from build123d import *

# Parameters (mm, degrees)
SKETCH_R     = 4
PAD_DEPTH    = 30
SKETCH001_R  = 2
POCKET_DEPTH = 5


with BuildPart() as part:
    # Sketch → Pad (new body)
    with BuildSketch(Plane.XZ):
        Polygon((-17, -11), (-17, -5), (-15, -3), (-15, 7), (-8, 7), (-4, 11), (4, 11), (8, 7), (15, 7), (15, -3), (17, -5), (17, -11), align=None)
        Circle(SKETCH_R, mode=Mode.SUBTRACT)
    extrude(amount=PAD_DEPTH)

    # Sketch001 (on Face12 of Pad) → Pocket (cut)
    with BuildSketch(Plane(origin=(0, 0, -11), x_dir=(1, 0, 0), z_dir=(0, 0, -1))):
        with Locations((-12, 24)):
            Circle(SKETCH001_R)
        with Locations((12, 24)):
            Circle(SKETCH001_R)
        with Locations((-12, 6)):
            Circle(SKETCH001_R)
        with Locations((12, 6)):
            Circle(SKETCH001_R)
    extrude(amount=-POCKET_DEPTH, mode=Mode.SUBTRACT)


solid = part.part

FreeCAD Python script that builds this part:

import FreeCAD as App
import Part
import Sketcher

V = App.Vector


def add_polygon(sketch, points):
    """Adds a closed chain of lines whose ends are joined by coincident constraints."""
    first, n = sketch.GeometryCount, len(points)
    for a, b in zip(points, points[1:] + points[:1]):
        sketch.addGeometry(Part.LineSegment(App.Vector(*a, 0), App.Vector(*b, 0)), False)
    for i in range(n):
        sketch.addConstraint(Sketcher.Constraint("Coincident", first + i, 2, first + (i + 1) % n, 1))

doc = App.newDocument("Part")
body = doc.addObject("PartDesign::Body", "Body")

# Sketch on XZ plane
sketch1 = body.newObject("Sketcher::SketchObject", "Sketch")
sketch1.AttachmentSupport = (doc.getObject("XZ_Plane"), [""])
sketch1.MapMode = "FlatFace"
add_polygon(sketch1, [(-17, -5), (-17, -11), (17, -11), (17, -5), (15, -3), (15, 7), (8, 7), (4, 11), (-4, 11), (-8, 7), (-15, 7), (-15, -3)])  # lines 0-11
sketch1.addGeometry(Part.Circle(V(0, 0, 0), V(0, 0, 1), 4), False)  # 12
sketch1.addConstraint(Sketcher.Constraint("Vertical", 0))
sketch1.addConstraint(Sketcher.Constraint("Horizontal", 1))
sketch1.addConstraint(Sketcher.Constraint("Vertical", 2))
sketch1.addConstraint(Sketcher.Constraint("Vertical", 4))
sketch1.addConstraint(Sketcher.Constraint("Horizontal", 5))
sketch1.addConstraint(Sketcher.Constraint("Horizontal", 7))
sketch1.addConstraint(Sketcher.Constraint("Horizontal", 9))
sketch1.addConstraint(Sketcher.Constraint("Vertical", 10))
sketch1.addConstraint(Sketcher.Constraint("Coincident", 12, 3, -1, 1))
sketch1.addConstraint(Sketcher.Constraint("Symmetric", 5, 2, 8, 2, -2))
sketch1.addConstraint(Sketcher.Constraint("Symmetric", 3, 2, 10, 2, -2))
sketch1.addConstraint(Sketcher.Constraint("Symmetric", 2, 2, 11, 2, -2))
sketch1.addConstraint(Sketcher.Constraint("Parallel", 3, 6))
sketch1.addConstraint(Sketcher.Constraint("Perpendicular", 6, 8))
sketch1.addConstraint(Sketcher.Constraint("Parallel", 8, 11))
sketch1.addConstraint(Sketcher.Constraint("Diameter", 12, 8.0))
sketch1.addConstraint(Sketcher.Constraint("DistanceX", 1, 1, 1, 2, 34.0))
sketch1.addConstraint(Sketcher.Constraint("DistanceX", 5, 2, 5, 1, 7.0))
sketch1.addConstraint(Sketcher.Constraint("DistanceX", 7, 2, 7, 1, 8.0))
sketch1.addConstraint(Sketcher.Constraint("DistanceY", 0, 2, 0, 1, 6.0))
sketch1.addConstraint(Sketcher.Constraint("DistanceY", 4, 1, 4, 2, 10.0))
sketch1.addConstraint(Sketcher.Constraint("DistanceY", 0, 2, -1, 1, 11.0))
sketch1.addConstraint(Sketcher.Constraint("DistanceX", -1, 1, 3, 2, 15.0))
pad1 = body.newObject("PartDesign::Pad", "Pad")
pad1.Profile = sketch1
pad1.Length = 30

# Sketch on XY plane
sketch2 = body.newObject("Sketcher::SketchObject", "Sketch001")
sketch2.AttachmentSupport = (doc.getObject("XY_Plane"), [""])
sketch2.MapMode = "FlatFace"
sketch2.AttachmentOffset = App.Placement(V(0, 0, -11), App.Rotation())
sketch2.addGeometry(Part.Circle(V(-12, -24, 0), V(0, 0, 1), 2), False)
sketch2.addGeometry(Part.Circle(V(12, -24, 0), V(0, 0, 1), 2), False)
sketch2.addGeometry(Part.Circle(V(-12, -6, 0), V(0, 0, 1), 2), False)
sketch2.addGeometry(Part.Circle(V(12, -6, 0), V(0, 0, 1), 2), False)
sketch2.addConstraint(Sketcher.Constraint("Equal", 0, 1))
sketch2.addConstraint(Sketcher.Constraint("Equal", 1, 2))
sketch2.addConstraint(Sketcher.Constraint("Equal", 2, 3))
sketch2.addConstraint(Sketcher.Constraint("Symmetric", 0, 3, 1, 3, -2))
sketch2.addConstraint(Sketcher.Constraint("Symmetric", 2, 3, 3, 3, -2))
sketch2.addConstraint(Sketcher.Constraint("Vertical", 0, 3, 2, 3))
sketch2.addConstraint(Sketcher.Constraint("Diameter", 0, 4.0))
sketch2.addConstraint(Sketcher.Constraint("DistanceX", 0, 3, -1, 1, 12.0))
sketch2.addConstraint(Sketcher.Constraint("DistanceY", 0, 3, -1, 1, 24.0))
sketch2.addConstraint(Sketcher.Constraint("DistanceY", 2, 3, -1, 1, 6.0))
pocket1 = body.newObject("PartDesign::Pocket", "Pocket")
pocket1.Profile = sketch2
pocket1.Length = 5
pocket1.Reversed = True

doc.recompute()
